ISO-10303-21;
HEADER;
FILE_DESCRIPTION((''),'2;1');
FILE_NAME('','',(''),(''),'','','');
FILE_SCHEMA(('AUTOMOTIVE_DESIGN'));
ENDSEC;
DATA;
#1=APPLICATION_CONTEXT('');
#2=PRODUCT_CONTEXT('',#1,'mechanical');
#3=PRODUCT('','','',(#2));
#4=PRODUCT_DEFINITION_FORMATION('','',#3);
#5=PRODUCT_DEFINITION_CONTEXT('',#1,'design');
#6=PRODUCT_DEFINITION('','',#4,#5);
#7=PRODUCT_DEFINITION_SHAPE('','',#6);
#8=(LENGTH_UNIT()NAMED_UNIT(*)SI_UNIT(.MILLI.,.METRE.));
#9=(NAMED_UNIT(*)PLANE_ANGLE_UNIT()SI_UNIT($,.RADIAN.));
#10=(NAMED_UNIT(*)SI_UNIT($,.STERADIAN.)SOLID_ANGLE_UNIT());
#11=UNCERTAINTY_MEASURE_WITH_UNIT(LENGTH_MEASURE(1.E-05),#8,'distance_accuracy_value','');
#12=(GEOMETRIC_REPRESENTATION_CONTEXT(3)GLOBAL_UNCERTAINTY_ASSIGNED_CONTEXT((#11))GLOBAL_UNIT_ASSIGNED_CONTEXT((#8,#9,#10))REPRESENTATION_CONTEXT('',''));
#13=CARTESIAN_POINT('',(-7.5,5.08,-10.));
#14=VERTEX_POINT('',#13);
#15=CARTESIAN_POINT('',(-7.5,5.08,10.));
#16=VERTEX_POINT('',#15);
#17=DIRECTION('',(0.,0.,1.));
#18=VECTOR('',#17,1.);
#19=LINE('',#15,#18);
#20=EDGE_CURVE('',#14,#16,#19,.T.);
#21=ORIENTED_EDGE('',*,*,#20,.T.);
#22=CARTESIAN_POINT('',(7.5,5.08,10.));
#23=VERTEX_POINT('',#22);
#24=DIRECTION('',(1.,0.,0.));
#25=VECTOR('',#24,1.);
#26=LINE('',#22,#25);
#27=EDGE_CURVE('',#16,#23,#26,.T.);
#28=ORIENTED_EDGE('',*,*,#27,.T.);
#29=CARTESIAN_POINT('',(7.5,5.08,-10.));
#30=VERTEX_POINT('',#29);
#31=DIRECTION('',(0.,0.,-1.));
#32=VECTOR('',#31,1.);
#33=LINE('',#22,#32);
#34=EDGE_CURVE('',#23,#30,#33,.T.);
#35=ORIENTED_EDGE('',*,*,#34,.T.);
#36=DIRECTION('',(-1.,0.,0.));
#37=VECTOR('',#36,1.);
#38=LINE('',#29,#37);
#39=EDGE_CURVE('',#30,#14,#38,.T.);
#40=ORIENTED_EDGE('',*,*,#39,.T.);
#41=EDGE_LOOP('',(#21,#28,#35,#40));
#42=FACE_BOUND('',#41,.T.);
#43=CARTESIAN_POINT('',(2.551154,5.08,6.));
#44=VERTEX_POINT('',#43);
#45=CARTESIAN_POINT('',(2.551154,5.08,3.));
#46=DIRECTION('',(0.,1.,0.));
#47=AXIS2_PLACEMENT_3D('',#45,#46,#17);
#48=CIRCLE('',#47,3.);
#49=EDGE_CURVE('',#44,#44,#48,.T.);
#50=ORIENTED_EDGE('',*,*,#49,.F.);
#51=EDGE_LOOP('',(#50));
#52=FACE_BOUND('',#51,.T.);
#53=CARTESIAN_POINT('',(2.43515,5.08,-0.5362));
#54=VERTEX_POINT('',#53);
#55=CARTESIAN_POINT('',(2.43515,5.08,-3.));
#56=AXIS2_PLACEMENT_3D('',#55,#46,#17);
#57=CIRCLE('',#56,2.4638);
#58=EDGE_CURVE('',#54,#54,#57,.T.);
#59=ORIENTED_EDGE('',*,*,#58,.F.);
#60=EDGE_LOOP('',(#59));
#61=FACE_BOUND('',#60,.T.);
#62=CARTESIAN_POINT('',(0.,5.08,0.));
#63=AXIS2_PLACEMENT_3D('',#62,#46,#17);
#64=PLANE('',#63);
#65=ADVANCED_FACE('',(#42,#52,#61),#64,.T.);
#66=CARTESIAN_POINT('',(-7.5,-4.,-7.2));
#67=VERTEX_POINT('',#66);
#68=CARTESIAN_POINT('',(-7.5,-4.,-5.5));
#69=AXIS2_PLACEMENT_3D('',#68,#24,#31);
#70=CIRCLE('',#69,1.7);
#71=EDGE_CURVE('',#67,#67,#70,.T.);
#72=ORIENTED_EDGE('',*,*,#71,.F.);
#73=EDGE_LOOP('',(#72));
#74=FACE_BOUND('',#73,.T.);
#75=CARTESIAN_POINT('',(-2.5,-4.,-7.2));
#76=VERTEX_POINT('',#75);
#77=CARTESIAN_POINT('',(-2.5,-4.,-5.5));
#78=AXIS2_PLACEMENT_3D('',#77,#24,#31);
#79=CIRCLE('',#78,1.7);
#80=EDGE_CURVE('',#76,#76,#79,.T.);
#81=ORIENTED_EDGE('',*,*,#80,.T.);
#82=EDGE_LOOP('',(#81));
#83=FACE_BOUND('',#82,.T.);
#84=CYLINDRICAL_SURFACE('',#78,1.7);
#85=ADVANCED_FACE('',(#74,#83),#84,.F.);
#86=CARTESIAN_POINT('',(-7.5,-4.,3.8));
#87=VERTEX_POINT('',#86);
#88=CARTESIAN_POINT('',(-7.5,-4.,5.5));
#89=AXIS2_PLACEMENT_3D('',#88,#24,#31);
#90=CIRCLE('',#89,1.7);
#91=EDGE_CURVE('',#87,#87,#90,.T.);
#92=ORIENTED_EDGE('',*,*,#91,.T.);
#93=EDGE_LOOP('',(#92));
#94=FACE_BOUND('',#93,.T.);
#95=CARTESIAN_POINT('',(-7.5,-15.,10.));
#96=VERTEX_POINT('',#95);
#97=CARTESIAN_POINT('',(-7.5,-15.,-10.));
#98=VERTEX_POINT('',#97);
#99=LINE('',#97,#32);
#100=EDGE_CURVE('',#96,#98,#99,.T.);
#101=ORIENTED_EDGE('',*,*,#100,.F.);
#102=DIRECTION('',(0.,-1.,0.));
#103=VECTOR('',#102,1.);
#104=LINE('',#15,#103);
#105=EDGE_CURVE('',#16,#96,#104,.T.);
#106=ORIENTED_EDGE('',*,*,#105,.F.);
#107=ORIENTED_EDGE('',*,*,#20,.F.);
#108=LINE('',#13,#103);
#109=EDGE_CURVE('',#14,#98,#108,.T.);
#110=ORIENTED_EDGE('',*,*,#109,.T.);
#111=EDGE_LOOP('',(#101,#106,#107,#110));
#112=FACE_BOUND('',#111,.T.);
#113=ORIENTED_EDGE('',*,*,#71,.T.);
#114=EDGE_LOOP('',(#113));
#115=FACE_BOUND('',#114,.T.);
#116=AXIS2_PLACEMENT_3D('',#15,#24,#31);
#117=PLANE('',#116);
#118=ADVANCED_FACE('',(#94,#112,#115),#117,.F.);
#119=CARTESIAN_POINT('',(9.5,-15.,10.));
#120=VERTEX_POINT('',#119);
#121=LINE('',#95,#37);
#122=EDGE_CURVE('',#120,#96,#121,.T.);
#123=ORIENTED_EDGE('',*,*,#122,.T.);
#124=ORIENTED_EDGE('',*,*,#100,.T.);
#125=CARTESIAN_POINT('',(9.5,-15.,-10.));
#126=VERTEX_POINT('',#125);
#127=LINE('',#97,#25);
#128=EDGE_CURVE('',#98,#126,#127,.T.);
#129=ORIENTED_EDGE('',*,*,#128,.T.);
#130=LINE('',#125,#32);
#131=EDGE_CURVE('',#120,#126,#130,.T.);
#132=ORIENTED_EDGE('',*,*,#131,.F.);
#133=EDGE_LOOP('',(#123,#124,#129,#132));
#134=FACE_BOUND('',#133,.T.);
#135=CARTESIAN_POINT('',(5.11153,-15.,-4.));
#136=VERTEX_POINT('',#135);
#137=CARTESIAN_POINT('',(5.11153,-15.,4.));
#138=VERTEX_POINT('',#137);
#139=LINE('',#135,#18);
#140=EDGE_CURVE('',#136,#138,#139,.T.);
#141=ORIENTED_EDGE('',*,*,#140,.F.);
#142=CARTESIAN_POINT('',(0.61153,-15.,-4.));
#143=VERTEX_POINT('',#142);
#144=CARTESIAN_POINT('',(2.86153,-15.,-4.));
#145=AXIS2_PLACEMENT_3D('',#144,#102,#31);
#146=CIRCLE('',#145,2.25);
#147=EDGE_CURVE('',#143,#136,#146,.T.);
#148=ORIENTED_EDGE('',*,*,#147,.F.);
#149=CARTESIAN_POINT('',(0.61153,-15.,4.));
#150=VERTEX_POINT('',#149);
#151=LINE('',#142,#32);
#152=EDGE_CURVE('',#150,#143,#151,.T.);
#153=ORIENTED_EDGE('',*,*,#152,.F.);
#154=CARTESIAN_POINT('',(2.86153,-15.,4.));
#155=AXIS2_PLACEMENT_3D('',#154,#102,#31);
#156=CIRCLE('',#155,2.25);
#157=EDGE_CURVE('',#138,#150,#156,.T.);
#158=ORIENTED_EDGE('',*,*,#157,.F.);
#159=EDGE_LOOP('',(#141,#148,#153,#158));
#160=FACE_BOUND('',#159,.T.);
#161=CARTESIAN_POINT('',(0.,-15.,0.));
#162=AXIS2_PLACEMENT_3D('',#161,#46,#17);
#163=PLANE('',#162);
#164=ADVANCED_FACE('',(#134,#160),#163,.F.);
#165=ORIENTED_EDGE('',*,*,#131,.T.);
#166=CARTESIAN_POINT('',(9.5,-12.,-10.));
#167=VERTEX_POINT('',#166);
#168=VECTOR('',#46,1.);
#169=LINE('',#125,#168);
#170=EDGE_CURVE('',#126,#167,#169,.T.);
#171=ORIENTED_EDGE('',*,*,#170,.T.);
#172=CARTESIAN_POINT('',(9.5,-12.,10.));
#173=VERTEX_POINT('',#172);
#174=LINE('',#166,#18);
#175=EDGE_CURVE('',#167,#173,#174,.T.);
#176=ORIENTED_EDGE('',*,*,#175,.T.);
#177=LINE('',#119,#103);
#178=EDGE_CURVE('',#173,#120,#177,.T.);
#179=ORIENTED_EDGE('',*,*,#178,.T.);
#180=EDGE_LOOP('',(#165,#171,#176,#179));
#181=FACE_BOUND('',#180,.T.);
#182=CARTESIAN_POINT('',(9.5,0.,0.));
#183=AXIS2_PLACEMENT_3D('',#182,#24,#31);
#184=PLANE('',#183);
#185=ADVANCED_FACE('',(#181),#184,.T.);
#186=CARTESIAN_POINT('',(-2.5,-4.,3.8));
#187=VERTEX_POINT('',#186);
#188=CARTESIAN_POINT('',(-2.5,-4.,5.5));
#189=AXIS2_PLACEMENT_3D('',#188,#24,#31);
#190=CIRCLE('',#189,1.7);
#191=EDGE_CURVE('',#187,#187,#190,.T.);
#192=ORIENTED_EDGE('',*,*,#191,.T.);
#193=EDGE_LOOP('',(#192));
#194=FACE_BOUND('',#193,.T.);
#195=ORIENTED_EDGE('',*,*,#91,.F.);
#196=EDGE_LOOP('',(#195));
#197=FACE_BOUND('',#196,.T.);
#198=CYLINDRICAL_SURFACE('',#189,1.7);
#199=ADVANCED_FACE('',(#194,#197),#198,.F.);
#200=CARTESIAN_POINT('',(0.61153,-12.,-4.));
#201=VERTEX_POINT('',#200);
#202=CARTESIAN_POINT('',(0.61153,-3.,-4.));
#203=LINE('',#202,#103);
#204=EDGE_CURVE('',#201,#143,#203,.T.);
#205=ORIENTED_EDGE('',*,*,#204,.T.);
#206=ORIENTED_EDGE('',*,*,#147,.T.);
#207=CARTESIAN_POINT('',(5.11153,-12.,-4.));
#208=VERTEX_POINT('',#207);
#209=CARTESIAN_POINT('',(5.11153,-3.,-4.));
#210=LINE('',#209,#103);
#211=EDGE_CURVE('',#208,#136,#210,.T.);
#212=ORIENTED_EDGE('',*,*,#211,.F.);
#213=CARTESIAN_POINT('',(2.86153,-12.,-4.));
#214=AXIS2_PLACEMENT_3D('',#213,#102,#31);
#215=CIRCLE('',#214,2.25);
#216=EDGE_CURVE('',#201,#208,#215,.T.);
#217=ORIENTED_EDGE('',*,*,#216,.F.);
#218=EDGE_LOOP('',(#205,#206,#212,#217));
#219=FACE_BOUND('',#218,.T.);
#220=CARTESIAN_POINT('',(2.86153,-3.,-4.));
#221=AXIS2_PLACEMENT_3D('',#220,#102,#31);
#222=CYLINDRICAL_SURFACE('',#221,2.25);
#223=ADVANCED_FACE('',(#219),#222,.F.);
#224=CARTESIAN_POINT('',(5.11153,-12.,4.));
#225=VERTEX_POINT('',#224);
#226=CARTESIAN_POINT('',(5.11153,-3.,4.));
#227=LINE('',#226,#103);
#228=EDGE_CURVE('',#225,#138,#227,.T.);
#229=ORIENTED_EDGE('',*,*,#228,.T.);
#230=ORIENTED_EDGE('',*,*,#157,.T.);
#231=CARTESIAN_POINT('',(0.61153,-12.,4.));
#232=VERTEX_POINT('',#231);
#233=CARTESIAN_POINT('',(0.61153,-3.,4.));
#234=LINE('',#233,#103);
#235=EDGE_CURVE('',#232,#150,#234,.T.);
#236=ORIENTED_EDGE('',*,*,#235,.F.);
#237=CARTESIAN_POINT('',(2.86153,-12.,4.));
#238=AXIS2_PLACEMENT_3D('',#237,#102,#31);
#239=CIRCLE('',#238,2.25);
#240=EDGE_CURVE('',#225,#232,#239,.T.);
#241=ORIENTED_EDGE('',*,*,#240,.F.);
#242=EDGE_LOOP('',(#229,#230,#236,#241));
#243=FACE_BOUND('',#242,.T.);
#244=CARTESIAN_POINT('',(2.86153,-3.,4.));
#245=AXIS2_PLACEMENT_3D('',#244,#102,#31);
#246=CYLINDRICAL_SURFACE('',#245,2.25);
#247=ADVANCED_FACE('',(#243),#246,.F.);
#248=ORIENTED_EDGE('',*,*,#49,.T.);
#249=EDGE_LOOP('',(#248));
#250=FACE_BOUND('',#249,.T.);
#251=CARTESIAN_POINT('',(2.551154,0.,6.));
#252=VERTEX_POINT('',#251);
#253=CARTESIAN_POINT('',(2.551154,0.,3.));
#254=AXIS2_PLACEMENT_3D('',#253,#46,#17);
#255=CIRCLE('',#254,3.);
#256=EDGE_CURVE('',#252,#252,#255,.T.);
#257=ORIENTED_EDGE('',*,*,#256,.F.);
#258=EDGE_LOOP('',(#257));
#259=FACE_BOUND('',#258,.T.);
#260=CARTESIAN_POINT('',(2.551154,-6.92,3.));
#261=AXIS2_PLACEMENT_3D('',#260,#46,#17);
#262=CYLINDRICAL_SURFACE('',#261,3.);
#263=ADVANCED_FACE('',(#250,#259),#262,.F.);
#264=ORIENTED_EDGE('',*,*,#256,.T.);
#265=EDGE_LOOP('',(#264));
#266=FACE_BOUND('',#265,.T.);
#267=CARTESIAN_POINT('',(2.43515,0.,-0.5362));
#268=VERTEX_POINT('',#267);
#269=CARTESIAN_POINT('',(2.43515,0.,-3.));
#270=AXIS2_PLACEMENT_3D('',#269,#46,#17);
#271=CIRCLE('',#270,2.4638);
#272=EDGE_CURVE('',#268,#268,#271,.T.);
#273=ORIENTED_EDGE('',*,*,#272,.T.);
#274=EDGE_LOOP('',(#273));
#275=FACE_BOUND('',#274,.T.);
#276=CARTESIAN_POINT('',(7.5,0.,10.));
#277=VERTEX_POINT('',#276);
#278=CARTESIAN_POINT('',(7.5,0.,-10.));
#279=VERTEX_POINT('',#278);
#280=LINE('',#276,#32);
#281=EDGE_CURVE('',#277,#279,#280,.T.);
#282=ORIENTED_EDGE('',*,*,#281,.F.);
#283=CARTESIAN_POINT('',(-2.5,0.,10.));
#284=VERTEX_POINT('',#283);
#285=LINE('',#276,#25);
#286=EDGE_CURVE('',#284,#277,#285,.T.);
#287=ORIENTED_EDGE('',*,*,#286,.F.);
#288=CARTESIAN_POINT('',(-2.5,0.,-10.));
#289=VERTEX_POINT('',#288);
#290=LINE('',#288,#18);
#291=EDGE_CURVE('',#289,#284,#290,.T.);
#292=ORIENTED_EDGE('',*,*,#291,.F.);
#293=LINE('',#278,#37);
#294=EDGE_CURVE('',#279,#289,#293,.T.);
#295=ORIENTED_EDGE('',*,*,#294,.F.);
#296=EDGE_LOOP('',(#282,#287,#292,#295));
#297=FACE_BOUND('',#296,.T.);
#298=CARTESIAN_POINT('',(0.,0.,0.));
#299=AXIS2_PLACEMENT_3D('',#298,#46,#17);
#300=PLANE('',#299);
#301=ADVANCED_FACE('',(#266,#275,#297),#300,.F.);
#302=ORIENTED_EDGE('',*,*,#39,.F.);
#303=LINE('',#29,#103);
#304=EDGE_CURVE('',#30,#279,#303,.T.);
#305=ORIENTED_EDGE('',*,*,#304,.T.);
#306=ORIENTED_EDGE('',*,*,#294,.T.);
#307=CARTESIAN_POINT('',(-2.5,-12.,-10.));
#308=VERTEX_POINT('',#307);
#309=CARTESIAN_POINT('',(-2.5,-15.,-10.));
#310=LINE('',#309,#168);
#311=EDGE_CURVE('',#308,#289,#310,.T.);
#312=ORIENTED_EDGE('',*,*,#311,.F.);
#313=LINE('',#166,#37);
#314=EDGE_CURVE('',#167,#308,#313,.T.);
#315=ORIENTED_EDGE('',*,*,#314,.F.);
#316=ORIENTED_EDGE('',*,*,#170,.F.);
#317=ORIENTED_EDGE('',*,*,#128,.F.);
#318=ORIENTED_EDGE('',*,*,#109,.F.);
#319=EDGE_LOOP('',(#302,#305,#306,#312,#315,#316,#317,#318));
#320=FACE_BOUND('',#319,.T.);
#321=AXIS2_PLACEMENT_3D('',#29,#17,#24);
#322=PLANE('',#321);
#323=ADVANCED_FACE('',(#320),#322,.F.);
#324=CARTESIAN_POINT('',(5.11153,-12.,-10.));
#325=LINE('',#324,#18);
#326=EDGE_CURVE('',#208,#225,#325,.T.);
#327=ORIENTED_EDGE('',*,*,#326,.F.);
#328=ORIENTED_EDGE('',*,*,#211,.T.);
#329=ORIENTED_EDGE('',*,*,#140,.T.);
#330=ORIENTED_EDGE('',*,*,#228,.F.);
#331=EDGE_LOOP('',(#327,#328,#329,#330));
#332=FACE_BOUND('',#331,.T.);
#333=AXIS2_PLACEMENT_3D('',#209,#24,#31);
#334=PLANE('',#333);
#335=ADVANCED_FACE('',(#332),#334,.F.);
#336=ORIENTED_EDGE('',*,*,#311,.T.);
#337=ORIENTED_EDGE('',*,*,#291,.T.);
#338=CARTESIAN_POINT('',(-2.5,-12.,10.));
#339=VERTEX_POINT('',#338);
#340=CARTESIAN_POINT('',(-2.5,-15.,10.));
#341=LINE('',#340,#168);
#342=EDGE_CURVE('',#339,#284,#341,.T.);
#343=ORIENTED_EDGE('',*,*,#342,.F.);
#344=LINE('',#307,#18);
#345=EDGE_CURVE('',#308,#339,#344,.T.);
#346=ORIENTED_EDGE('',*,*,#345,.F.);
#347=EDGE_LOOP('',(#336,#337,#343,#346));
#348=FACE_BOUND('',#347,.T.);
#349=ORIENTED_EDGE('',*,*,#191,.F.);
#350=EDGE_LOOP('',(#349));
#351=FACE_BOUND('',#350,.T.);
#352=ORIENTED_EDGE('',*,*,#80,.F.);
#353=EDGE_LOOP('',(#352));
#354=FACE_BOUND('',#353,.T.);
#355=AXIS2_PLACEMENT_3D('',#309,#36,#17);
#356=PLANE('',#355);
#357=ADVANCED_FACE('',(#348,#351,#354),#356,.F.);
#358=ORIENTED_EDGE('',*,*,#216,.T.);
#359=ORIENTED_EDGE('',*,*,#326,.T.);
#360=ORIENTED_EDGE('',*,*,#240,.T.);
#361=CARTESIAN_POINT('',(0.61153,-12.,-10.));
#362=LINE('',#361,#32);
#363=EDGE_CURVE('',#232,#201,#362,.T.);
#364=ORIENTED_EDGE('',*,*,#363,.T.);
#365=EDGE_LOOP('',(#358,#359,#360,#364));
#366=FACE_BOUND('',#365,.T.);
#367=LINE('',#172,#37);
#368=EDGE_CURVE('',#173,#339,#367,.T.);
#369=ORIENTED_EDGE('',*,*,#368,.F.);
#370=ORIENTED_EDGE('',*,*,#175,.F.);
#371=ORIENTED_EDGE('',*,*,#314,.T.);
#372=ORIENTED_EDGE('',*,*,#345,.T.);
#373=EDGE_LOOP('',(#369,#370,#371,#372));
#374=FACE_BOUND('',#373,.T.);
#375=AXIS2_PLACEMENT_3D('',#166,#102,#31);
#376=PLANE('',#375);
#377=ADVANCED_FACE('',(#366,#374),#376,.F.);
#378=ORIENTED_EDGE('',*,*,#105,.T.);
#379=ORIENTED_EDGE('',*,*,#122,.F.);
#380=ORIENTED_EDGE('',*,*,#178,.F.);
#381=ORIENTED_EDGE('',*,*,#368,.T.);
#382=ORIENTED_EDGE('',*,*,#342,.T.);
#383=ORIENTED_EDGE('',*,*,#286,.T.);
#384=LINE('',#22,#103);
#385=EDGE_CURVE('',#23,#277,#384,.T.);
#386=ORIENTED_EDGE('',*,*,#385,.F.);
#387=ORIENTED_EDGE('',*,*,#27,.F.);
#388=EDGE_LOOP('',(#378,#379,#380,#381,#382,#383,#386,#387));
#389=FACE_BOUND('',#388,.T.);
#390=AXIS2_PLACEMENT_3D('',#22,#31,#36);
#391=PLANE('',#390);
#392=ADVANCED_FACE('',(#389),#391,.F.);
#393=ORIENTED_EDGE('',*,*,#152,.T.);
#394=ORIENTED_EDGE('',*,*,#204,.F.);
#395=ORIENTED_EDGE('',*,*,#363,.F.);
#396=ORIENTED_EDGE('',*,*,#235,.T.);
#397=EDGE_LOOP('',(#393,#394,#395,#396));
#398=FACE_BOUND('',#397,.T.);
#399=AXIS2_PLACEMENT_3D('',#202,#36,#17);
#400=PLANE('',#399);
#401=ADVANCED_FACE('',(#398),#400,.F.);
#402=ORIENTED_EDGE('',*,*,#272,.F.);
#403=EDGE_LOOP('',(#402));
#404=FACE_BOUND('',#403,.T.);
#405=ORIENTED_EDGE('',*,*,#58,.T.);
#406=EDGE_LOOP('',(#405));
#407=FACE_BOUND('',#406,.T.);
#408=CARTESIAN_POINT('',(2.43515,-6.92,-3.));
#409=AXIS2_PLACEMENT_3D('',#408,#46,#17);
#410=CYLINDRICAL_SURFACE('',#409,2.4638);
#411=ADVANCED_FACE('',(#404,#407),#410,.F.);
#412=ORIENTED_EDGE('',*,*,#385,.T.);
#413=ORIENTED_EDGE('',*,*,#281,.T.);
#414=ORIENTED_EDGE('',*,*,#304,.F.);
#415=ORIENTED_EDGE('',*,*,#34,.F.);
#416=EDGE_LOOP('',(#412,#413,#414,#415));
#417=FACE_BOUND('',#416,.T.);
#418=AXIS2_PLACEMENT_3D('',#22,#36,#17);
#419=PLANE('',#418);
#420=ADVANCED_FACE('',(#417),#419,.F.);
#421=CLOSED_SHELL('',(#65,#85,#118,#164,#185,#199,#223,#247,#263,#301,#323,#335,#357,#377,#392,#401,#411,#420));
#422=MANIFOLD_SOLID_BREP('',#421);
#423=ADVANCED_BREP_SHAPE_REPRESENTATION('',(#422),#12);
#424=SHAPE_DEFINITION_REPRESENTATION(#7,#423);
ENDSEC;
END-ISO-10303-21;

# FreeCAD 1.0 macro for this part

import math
import FreeCAD as App
import Part
import Sketcher

V = App.Vector
Q = App.Units.Quantity


def add_polygon(sketch, points):
    """Adds a closed chain of lines whose ends are joined by coincident constraints."""
    first, n = sketch.GeometryCount, len(points)
    for a, b in zip(points, points[1:] + points[:1]):
        sketch.addGeometry(Part.LineSegment(App.Vector(*a, 0), App.Vector(*b, 0)), False)
    for i in range(n):
        sketch.addConstraint(Sketcher.Constraint("Coincident", first + i, 2, first + (i + 1) % n, 1))

doc = App.newDocument("Part")
body = doc.addObject("PartDesign::Body", "Body")

sketch1 = body.newObject("Sketcher::SketchObject", "Sketch")
sketch1.AttachmentSupport = (doc.getObject("XZ_Plane"), [""])
sketch1.MapMode = "FlatFace"
add_polygon(sketch1, [(-8, -10), (-8, 10), (8, 10), (8, -10)])
sketch1.addConstraint(Sketcher.Constraint("Vertical", 0))
sketch1.addConstraint(Sketcher.Constraint("Horizontal", 1))
sketch1.addConstraint(Sketcher.Constraint("Vertical", 2))
sketch1.addConstraint(Sketcher.Constraint("Horizontal", 3))
sketch1.addConstraint(Sketcher.Constraint("Symmetric", 0, 2, 2, 2, -1, 1))
sketch1.addConstraint(Sketcher.Constraint("DistanceX", 1, 1, 1, 2, Q("15 mm")))
sketch1.addConstraint(Sketcher.Constraint("DistanceY", 0, 1, 0, 2, Q("20 mm")))
pad1 = body.newObject("PartDesign::Pad", "Pad")
pad1.Profile = sketch1
pad1.Length = 5.08
pad1.Reversed = True

sketch2 = body.newObject("Sketcher::SketchObject", "Sketch001")
sketch2.AttachmentSupport = (doc.getObject("XZ_Plane"), [""])
sketch2.MapMode = "FlatFace"
add_polygon(sketch2, [(-2, -10), (-2, 10), (-8, 10), (-8, -10)])
sketch2.addConstraint(Sketcher.Constraint("Vertical", 0))
sketch2.addConstraint(Sketcher.Constraint("Horizontal", 1))
sketch2.addConstraint(Sketcher.Constraint("Vertical", 2))
sketch2.addConstraint(Sketcher.Constraint("Horizontal", 3))
sketch2.addConstraint(Sketcher.Constraint("DistanceX", 1, 2, 1, 1, Q("5 mm")))
sketch2.addConstraint(Sketcher.Constraint("DistanceY", 0, 1, 0, 2, Q("20 mm")))
sketch2.addConstraint(Sketcher.Constraint("DistanceY", -1, 1, 0, 2, Q("10 mm")))
sketch2.addConstraint(Sketcher.Constraint("DistanceX", 0, 2, -1, 1, Q("2.5 mm")))
pad2 = body.newObject("PartDesign::Pad", "Pad001")
pad2.Profile = sketch2
pad2.Length = 15

sketch3 = body.newObject("Sketcher::SketchObject", "Sketch002")
sketch3.AttachmentSupport = (doc.getObject("YZ_Plane"), [""])
sketch3.MapMode = "FlatFace"
sketch3.AttachmentOffset = App.Placement(V(0, 0, -2.5), App.Rotation())
sketch3.addGeometry(Part.Circle(V(-4, -5.5, 0), V(0, 0, 1), 1.7), False)
sketch3.addGeometry(Part.Circle(V(-4, 5.5, 0), V(0, 0, 1), 1.7), False)
sketch3.addConstraint(Sketcher.Constraint("Equal", 0, 1))
sketch3.addConstraint(Sketcher.Constraint("Symmetric", 0, 3, 1, 3, -1))
sketch3.addConstraint(Sketcher.Constraint("Diameter", 0, Q("3.4 mm")))
sketch3.addConstraint(Sketcher.Constraint("DistanceX", 0, 3, -1, 1, Q("4 mm")))
sketch3.addConstraint(Sketcher.Constraint("DistanceY", 0, 3, 1, 3, Q("11 mm")))
doc.recompute()
hole = body.newObject("PartDesign::Hole", "Hole")
hole.Profile = sketch3
hole.ThreadType = "None"
hole.Diameter = 3.4
hole.DepthType = "ThroughAll"

sketch4 = body.newObject("Sketcher::SketchObject", "Sketch003")
sketch4.AttachmentSupport = (doc.getObject("YZ_Plane"), [""])
sketch4.MapMode = "FlatFace"
sketch4.AttachmentOffset = App.Placement(V(0, 0, -2.5), App.Rotation())
add_polygon(sketch4, [(-12, 10), (-15, 10), (-15, -10), (-12, -10)])
sketch4.addConstraint(Sketcher.Constraint("Horizontal", 0))
sketch4.addConstraint(Sketcher.Constraint("Vertical", 1))
sketch4.addConstraint(Sketcher.Constraint("Horizontal", 2))
sketch4.addConstraint(Sketcher.Constraint("Vertical", 3))
sketch4.addConstraint(Sketcher.Constraint("DistanceX", 0, 2, 0, 1, Q("3 mm")))
sketch4.addConstraint(Sketcher.Constraint("DistanceY", 1, 2, 1, 1, Q("20 mm")))
sketch4.addConstraint(Sketcher.Constraint("DistanceX", 0, 2, -1, 1, Q("15 mm")))
sketch4.addConstraint(Sketcher.Constraint("DistanceY", -1, 1, 0, 2, Q("10 mm")))
pad3 = body.newObject("PartDesign::Pad", "Pad002")
pad3.Profile = sketch4
pad3.Length = 12

sketch5 = body.newObject("Sketcher::SketchObject", "Sketch004")
sketch5.AttachmentSupport = (doc.getObject("XZ_Plane"), [""])
sketch5.MapMode = "FlatFace"
sketch5.AttachmentOffset = App.Placement(V(0, 0, -5.08), App.Rotation())
sketch5.addGeometry(Part.Circle(V(2.4, -3, 0), V(0, 0, 1), 2.5), False)
sketch5.addConstraint(Sketcher.Constraint("DistanceY", 0, 3, -1, 1, Q("3 mm")))
sketch5.addConstraint(Sketcher.Constraint("Diameter", 0, Q("4.9276 mm")))
sketch5.addConstraint(Sketcher.Constraint("DistanceX", -1, 1, 0, 3, Q("2.43515 mm")))
pocket1 = body.newObject("PartDesign::Pocket", "Pocket")
pocket1.Profile = sketch5
pocket1.Length = 12
pocket1.Reversed = True

sketch6 = body.newObject("Sketcher::SketchObject", "Sketch005")
sketch6.AttachmentSupport = (doc.getObject("XZ_Plane"), [""])
sketch6.MapMode = "FlatFace"
sketch6.AttachmentOffset = App.Placement(V(0, 0, -5.08), App.Rotation())
sketch6.addGeometry(Part.Circle(V(2.6, 3, 0), V(0, 0, 1), 3), False)
sketch6.addConstraint(Sketcher.Constraint("Diameter", 0, Q("6 mm")))
sketch6.addConstraint(Sketcher.Constraint("DistanceY", -1, 1, 0, 3, Q("3 mm")))
sketch6.addConstraint(Sketcher.Constraint("DistanceX", -1, 1, 0, 3, Q("2.551154 mm")))
pocket2 = body.newObject("PartDesign::Pocket", "Pocket001")
pocket2.Profile = sketch6
pocket2.Length = 12
pocket2.Reversed = True

sketch7 = body.newObject("Sketcher::SketchObject", "Sketch006")
sketch7.AttachmentSupport = (doc.getObject("XZ_Plane"), [""])
sketch7.MapMode = "FlatFace"
sketch7.AttachmentOffset = App.Placement(V(0, 0, 15), App.Rotation())
sketch7.addGeometry(Part.LineSegment(V(0.6, 4, 0), V(0.6, -4, 0)), False)
sketch7.addGeometry(Part.ArcOfCircle(Part.Circle(V(2.9, -4, 0), V(0, 0, 1), 2.2), math.radians(180), math.radians(360)), False)
sketch7.addGeometry(Part.LineSegment(V(5.1, -4, 0), V(5.1, 4, 0)), False)
sketch7.addGeometry(Part.ArcOfCircle(Part.Circle(V(2.9, 4, 0), V(0, 0, 1), 2.2), math.radians(0), math.radians(180)), False)
sketch7.addConstraint(Sketcher.Constraint("Tangent", 0, 2, 1, 1))
sketch7.addConstraint(Sketcher.Constraint("Tangent", 1, 2, 2, 1))
sketch7.addConstraint(Sketcher.Constraint("Tangent", 2, 2, 3, 1))
sketch7.addConstraint(Sketcher.Constraint("Tangent", 3, 2, 0, 1))
sketch7.addConstraint(Sketcher.Constraint("Vertical", 0))
sketch7.addConstraint(Sketcher.Constraint("Vertical", 2))
sketch7.addConstraint(Sketcher.Constraint("DistanceY", 0, 2, 0, 1, Q("8 mm")))
sketch7.addConstraint(Sketcher.Constraint("Radius", 1, Q("2.25 mm")))
sketch7.addConstraint(Sketcher.Constraint("DistanceY", 1, 3, -1, 1, Q("4 mm")))
sketch7.addConstraint(Sketcher.Constraint("DistanceX", -1, 1, 1, 3, Q("2.86153 mm")))
pocket3 = body.newObject("PartDesign::Pocket", "Pocket002")
pocket3.Profile = sketch7
pocket3.Length = 12

doc.recompute()
